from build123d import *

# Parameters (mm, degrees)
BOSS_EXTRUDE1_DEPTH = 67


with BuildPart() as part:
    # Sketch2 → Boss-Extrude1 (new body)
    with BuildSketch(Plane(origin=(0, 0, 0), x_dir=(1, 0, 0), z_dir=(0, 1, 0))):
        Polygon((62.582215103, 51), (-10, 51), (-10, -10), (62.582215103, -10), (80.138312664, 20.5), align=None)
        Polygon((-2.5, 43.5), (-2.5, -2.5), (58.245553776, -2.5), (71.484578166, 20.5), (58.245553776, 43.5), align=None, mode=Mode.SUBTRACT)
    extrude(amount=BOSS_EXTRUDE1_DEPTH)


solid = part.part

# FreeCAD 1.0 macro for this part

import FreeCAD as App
import Part
import Sketcher

V = App.Vector
Q = App.Units.Quantity

doc = App.newDocument("Part")
params = doc.addObject("Spreadsheet::Sheet", "Params")
for row, (alias, value) in enumerate([
    ("sketch1_height", "61 mm"),
    ("sketch1_height2", "46 mm"),
    ("pad1_length", "67 mm"),
], start=1):
    params.set(f"A{row}", alias)
    params.set(f"B{row}", "=" + value)
    params.setAlias(f"B{row}", alias)

body = doc.addObject("PartDesign::Body", "Body")

# Sketch on XZ plane
sketch1 = doc.addObject("Sketcher::SketchObject", "Sketch")
body.addObject(sketch1)
sketch1.AttachmentSupport = (doc.XZ_Plane, [""])
sketch1.MapMode = "FlatFace"
sketch1.addGeometry([
    Part.LineSegment(V(63, -51, 0), V(-10, -51, 0)),  # 0
    Part.LineSegment(V(-10, -51, 0), V(-10, 10, 0)),  # 1
    Part.LineSegment(V(-10, 10, 0), V(63, 10, 0)),  # 2
    Part.LineSegment(V(63, 10, 0), V(80, -20, 0)),  # 3
    Part.LineSegment(V(80, -20, 0), V(63, -51, 0)),  # 4
    Part.LineSegment(V(-2, 2, 0), V(-2, -44, 0)),  # 5
    Part.LineSegment(V(-2, -44, 0), V(58, -44, 0)),  # 6
    Part.LineSegment(V(58, -44, 0), V(71, -20, 0)),  # 7
    Part.LineSegment(V(71, -20, 0), V(58, 2, 0)),  # 8
    Part.LineSegment(V(58, 2, 0), V(-2, 2, 0)),  # 9
], False)
sketch1.addConstraint([
    Sketcher.Constraint("Coincident", 0, 2, 1, 1),
    Sketcher.Constraint("Coincident", 1, 2, 2, 1),
    Sketcher.Constraint("Coincident", 2, 2, 3, 1),
    Sketcher.Constraint("Coincident", 3, 2, 4, 1),
    Sketcher.Constraint("Coincident", 4, 2, 0, 1),
    Sketcher.Constraint("Coincident", 5, 2, 6, 1),
    Sketcher.Constraint("Coincident", 6, 2, 7, 1),
    Sketcher.Constraint("Coincident", 7, 2, 8, 1),
    Sketcher.Constraint("Coincident", 8, 2, 9, 1),
    Sketcher.Constraint("Coincident", 9, 2, 5, 1),
    Sketcher.Constraint("Horizontal", 0),
    Sketcher.Constraint("Vertical", 1),
    Sketcher.Constraint("Horizontal", 2),
    Sketcher.Constraint("Vertical", 5),
    Sketcher.Constraint("Horizontal", 6),
    Sketcher.Constraint("Horizontal", 9),
    Sketcher.Constraint("Parallel", 4, 7),
    Sketcher.Constraint("Parallel", 3, 8),
    Sketcher.Constraint("Horizontal", 3, 2, 7, 2),
    Sketcher.Constraint("Vertical", 2, 2, 4, 2),
    Sketcher.Constraint("Vertical", 6, 2, 8, 2),
    Sketcher.Constraint("Equal", 3, 4),
    Sketcher.Constraint("DistanceY", 1, 1, 1, 2, Q("61 mm")),
    Sketcher.Constraint("DistanceY", 5, 2, 5, 1, Q("46 mm")),
    Sketcher.Constraint("DistanceX", 0, 2, -1, 1, Q("10 mm")),
    Sketcher.Constraint("DistanceY", 0, 2, -1, 1, Q("51 mm")),
    Sketcher.Constraint("DistanceX", 5, 2, -1, 1, Q("2.5 mm")),
    Sketcher.Constraint("Distance", 7, Q("26.538119 mm")),
    Sketcher.Constraint("DistanceX", 0, 2, 0, 1, Q("72.582215 mm")),
    Sketcher.Constraint("DistanceX", 6, 1, 6, 2, Q("60.745554 mm")),
])
sketch1.setExpression("Constraints[22]", "Params.sketch1_height")
sketch1.setExpression("Constraints[23]", "Params.sketch1_height2")
pad1 = doc.addObject("PartDesign::Pad", "Pad")
body.addObject(pad1)
pad1.Profile = sketch1
pad1.setExpression("Length", "Params.pad1_length")
pad1.Reversed = True

doc.recompute()
